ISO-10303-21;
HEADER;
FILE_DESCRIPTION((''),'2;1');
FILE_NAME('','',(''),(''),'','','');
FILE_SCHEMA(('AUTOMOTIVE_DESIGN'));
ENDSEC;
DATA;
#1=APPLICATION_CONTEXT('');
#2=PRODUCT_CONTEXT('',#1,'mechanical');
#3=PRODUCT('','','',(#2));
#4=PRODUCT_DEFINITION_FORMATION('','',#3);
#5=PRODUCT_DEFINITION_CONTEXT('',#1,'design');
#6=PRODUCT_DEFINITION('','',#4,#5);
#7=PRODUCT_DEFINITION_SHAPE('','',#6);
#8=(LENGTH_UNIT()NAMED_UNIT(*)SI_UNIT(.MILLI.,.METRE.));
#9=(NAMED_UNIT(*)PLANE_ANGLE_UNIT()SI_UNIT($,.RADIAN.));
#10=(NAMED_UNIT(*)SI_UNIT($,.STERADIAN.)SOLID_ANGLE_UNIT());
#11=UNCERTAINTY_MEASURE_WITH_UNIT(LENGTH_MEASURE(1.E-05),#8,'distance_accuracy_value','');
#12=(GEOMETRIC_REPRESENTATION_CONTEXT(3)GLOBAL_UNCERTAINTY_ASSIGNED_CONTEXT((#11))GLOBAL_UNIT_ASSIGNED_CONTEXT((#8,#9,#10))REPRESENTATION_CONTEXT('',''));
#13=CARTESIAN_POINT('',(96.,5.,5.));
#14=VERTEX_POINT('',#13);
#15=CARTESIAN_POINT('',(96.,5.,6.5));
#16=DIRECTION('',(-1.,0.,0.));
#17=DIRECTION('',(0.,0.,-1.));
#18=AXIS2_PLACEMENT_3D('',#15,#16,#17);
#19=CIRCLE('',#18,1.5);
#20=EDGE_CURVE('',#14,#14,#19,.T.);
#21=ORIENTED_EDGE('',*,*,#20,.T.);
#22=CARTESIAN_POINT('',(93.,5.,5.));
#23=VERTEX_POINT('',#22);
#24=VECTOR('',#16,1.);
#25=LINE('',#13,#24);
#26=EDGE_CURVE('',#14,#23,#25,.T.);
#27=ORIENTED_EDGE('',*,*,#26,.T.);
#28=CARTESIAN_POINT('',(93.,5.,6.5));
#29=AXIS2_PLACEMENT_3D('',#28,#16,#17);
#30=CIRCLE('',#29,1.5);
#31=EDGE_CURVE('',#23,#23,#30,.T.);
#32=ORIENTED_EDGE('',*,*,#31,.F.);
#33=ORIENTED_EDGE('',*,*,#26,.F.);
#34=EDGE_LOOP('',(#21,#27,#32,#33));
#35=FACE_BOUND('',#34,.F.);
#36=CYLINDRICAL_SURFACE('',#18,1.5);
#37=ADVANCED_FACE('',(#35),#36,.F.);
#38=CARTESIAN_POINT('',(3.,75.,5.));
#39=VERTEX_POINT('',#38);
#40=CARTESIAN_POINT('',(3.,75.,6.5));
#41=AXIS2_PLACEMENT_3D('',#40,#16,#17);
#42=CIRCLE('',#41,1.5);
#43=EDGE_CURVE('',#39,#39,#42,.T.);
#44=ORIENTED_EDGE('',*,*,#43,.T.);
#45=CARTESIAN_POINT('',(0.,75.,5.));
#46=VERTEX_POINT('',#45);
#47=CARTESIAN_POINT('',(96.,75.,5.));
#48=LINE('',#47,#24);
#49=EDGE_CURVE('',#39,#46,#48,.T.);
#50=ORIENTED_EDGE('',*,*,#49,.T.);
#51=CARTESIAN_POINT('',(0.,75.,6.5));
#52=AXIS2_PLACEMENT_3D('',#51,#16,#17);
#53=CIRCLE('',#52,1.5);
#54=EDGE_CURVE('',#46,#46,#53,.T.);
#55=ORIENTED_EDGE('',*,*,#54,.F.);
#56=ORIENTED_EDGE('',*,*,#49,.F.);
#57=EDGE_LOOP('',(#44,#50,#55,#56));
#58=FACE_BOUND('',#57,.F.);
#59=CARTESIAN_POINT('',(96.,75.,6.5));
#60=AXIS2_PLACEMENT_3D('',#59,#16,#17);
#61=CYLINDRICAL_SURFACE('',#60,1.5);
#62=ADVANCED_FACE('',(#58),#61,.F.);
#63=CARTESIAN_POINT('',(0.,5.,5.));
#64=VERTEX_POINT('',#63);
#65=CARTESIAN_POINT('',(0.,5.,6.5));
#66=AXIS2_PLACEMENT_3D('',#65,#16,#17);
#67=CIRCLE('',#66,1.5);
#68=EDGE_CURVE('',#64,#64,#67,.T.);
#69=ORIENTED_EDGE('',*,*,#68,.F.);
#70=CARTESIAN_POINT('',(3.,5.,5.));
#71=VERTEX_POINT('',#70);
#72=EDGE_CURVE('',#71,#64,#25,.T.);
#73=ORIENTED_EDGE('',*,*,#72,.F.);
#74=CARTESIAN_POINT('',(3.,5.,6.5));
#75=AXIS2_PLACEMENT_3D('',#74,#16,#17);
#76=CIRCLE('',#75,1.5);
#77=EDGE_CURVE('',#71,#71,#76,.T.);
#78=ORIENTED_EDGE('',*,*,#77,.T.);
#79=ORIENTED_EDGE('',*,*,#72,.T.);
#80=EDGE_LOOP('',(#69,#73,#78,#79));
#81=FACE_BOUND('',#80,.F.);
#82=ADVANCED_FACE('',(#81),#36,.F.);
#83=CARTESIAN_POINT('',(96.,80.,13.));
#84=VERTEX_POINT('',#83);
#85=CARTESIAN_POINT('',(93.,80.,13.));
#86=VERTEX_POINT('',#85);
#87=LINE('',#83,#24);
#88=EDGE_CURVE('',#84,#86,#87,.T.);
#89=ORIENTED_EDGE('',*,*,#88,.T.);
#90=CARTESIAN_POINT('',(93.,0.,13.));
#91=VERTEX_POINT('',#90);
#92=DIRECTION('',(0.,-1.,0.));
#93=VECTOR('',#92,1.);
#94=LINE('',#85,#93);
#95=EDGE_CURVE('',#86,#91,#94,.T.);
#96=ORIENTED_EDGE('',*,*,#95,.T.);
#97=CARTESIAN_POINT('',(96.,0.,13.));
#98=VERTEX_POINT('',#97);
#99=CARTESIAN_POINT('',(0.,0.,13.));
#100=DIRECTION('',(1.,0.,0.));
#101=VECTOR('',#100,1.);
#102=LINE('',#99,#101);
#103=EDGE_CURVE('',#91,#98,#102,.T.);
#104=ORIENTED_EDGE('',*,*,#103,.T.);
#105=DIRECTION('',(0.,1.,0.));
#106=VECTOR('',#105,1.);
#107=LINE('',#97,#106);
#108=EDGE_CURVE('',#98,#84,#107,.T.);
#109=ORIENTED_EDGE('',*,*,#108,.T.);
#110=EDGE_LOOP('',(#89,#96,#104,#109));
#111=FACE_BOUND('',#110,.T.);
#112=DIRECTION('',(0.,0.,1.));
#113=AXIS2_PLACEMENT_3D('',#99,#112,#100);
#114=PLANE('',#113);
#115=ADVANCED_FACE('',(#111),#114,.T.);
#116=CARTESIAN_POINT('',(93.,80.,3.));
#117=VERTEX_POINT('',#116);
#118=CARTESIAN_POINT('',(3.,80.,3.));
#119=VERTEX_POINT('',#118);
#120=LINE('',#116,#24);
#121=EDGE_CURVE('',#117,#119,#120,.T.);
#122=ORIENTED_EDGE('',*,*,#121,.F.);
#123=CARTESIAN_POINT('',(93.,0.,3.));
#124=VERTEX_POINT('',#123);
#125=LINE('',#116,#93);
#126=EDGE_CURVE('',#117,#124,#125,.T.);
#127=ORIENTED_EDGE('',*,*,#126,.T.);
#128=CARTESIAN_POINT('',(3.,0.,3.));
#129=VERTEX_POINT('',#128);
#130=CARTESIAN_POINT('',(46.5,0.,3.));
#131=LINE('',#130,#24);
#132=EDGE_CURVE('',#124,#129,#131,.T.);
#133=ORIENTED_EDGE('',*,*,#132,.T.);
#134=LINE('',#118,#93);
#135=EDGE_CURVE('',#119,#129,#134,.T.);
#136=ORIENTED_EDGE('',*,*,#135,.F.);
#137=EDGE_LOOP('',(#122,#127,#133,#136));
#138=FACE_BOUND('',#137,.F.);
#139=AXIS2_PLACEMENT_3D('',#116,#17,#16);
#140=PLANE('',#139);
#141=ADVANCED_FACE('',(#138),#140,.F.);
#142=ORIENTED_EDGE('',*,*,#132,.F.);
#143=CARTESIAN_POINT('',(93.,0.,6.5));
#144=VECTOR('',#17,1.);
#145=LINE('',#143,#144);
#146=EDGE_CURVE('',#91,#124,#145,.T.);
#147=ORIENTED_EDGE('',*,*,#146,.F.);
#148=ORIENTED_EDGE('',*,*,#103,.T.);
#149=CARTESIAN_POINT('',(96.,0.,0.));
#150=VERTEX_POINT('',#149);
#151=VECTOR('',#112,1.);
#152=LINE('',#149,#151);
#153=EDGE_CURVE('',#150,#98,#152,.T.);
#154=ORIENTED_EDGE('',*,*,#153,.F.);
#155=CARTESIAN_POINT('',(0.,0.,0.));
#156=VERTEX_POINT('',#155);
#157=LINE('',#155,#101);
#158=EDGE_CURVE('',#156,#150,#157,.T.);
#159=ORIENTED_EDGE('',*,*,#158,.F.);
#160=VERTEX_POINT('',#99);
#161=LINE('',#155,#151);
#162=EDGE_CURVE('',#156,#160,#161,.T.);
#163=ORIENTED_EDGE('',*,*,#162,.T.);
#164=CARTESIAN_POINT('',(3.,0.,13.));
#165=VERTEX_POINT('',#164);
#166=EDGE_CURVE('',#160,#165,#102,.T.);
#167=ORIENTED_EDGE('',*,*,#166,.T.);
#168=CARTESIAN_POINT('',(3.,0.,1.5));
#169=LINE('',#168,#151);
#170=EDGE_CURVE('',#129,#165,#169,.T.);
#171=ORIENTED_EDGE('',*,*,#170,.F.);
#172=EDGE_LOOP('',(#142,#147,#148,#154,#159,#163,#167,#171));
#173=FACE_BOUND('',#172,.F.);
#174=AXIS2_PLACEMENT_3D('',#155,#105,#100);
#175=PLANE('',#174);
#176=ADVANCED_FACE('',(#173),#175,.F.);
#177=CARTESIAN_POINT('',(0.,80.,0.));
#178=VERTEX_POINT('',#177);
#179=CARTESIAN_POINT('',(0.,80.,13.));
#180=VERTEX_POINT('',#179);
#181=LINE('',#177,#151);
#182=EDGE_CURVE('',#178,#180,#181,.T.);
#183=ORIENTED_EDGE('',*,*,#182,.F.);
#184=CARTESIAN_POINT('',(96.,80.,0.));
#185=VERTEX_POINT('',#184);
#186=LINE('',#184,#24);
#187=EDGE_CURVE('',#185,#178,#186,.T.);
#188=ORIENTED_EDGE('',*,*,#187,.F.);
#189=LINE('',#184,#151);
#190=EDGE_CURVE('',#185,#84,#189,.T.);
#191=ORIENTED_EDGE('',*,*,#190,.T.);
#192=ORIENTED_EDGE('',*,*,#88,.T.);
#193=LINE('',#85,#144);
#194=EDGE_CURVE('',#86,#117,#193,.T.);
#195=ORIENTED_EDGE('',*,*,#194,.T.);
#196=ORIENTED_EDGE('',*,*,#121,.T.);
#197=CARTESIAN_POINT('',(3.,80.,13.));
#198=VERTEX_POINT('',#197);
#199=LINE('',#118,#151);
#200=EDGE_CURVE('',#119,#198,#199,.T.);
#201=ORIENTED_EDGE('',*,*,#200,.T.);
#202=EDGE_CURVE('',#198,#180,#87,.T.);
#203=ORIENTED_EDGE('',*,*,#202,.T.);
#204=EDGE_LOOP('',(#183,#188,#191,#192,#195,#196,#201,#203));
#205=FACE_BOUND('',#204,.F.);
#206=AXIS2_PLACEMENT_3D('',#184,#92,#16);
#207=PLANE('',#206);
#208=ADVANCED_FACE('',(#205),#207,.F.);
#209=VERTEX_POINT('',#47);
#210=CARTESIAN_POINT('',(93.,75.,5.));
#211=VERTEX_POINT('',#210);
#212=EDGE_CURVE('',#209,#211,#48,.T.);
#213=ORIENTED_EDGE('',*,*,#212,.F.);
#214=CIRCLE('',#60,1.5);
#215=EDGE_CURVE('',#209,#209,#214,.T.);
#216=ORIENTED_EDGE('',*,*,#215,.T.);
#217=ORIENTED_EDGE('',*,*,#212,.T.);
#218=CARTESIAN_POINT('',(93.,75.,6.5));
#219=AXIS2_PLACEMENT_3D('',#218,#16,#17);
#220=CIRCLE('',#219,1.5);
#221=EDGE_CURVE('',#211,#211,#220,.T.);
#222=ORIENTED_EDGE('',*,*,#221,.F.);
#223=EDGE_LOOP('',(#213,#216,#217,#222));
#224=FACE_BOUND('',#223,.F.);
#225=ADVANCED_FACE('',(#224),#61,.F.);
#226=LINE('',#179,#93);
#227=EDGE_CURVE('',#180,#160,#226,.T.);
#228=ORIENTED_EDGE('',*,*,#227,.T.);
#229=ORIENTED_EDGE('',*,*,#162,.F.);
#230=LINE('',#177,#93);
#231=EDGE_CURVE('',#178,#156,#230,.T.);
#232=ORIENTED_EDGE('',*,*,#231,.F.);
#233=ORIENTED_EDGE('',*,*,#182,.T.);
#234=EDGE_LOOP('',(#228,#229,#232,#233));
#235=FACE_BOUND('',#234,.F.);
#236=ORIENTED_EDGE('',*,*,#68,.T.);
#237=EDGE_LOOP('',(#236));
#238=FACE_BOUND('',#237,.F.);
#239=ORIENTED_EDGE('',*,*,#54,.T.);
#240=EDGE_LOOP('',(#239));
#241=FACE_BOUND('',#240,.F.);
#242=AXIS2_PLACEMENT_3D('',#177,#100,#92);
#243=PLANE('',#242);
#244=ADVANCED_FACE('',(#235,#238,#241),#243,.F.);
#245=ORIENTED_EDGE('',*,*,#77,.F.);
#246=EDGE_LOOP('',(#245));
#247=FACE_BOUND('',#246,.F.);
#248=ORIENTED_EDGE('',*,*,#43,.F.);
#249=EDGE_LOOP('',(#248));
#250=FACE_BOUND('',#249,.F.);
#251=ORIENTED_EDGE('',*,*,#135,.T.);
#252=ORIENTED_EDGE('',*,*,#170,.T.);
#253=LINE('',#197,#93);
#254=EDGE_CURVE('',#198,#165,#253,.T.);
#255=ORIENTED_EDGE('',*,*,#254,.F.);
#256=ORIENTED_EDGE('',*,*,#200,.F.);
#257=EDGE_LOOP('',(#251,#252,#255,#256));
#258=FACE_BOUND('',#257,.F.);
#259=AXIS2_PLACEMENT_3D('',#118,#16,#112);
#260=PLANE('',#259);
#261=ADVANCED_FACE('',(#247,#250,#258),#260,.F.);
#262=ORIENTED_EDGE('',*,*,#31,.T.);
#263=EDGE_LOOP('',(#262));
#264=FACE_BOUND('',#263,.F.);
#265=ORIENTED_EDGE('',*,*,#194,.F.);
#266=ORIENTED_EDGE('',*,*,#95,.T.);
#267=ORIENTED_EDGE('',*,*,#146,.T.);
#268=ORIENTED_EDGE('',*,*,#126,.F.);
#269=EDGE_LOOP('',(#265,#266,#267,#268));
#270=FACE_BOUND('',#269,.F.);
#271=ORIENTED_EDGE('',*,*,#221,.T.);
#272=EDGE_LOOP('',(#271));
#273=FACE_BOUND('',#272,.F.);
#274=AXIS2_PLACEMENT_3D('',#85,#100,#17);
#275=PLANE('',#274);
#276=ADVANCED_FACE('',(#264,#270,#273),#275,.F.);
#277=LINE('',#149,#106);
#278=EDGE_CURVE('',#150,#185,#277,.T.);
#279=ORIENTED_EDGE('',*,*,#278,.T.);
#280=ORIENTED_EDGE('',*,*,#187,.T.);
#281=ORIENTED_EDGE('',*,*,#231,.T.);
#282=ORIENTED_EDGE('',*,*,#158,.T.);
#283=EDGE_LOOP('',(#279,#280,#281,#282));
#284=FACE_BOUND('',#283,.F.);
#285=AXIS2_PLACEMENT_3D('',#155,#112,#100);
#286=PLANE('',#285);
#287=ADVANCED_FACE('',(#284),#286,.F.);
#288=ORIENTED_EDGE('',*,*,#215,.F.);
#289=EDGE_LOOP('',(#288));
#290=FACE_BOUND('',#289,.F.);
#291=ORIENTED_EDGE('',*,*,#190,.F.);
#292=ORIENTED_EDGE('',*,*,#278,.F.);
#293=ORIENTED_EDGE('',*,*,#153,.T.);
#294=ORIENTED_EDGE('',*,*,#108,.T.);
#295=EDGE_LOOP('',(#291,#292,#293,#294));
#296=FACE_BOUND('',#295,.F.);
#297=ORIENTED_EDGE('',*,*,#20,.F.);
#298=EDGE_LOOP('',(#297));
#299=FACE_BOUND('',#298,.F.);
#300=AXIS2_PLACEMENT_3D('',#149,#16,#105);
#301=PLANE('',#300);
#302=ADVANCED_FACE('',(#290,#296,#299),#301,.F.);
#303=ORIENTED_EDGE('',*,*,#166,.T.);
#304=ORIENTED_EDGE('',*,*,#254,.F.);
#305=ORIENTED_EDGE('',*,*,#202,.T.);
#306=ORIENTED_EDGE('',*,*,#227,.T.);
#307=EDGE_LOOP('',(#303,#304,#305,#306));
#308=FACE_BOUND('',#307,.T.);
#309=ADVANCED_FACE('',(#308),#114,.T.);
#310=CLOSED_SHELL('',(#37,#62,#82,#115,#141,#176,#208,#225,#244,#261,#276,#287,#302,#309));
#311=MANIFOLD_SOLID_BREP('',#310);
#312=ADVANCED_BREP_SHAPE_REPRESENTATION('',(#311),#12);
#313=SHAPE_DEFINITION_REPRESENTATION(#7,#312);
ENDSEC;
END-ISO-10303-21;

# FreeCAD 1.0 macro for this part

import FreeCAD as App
import Part
import Sketcher

V = App.Vector
Q = App.Units.Quantity

doc = App.newDocument("Part")
body = doc.addObject("PartDesign::Body", "Body")

sketch1 = doc.addObject("Sketcher::SketchObject", "Sketch")
body.addObject(sketch1)
sketch1.AttachmentSupport = (doc.XY_Plane, [""])
sketch1.MapMode = "FlatFace"
sketch1.addGeometry(Part.LineSegment(V(0, 80, 0), V(0, 0, 0)), False)
sketch1.addGeometry(Part.LineSegment(V(0, 0, 0), V(96, 0, 0)), False)
sketch1.addGeometry(Part.LineSegment(V(96, 0, 0), V(96, 80, 0)), False)
sketch1.addGeometry(Part.LineSegment(V(96, 80, 0), V(0, 80, 0)), False)
sketch1.addConstraint(Sketcher.Constraint("Coincident", 0, 2, 1, 1))
sketch1.addConstraint(Sketcher.Constraint("Coincident", 1, 2, 2, 1))
sketch1.addConstraint(Sketcher.Constraint("Coincident", 2, 2, 3, 1))
sketch1.addConstraint(Sketcher.Constraint("Coincident", 3, 2, 0, 1))
sketch1.addConstraint(Sketcher.Constraint("Vertical", 0))
sketch1.addConstraint(Sketcher.Constraint("Horizontal", 1))
sketch1.addConstraint(Sketcher.Constraint("Vertical", 2))
sketch1.addConstraint(Sketcher.Constraint("Horizontal", 3))
sketch1.addConstraint(Sketcher.Constraint("Coincident", 0, 2, -1, 1))
sketch1.addConstraint(Sketcher.Constraint("DistanceX", 1, 1, 1, 2, Q("96 mm")))
sketch1.addConstraint(Sketcher.Constraint("DistanceY", 0, 2, 0, 1, Q("80 mm")))
pad1 = doc.addObject("PartDesign::Pad", "Pad")
body.addObject(pad1)
pad1.Profile = sketch1
pad1.Length = 13

sketch2 = doc.addObject("Sketcher::SketchObject", "Sketch001")
body.addObject(sketch2)
sketch2.AttachmentSupport = (doc.XZ_Plane, [""])
sketch2.MapMode = "FlatFace"
sketch2.AttachmentOffset = App.Placement(V(0, 0, -80), App.Rotation())
sketch2.addGeometry(Part.LineSegment(V(3, 3, 0), V(3, 13, 0)), False)
sketch2.addGeometry(Part.LineSegment(V(3, 13, 0), V(93, 13, 0)), False)
sketch2.addGeometry(Part.LineSegment(V(93, 13, 0), V(93, 3, 0)), False)
sketch2.addGeometry(Part.LineSegment(V(93, 3, 0), V(3, 3, 0)), False)
sketch2.addConstraint(Sketcher.Constraint("Coincident", 0, 2, 1, 1))
sketch2.addConstraint(Sketcher.Constraint("Coincident", 1, 2, 2, 1))
sketch2.addConstraint(Sketcher.Constraint("Coincident", 2, 2, 3, 1))
sketch2.addConstraint(Sketcher.Constraint("Coincident", 3, 2, 0, 1))
sketch2.addConstraint(Sketcher.Constraint("Vertical", 0))
sketch2.addConstraint(Sketcher.Constraint("Horizontal", 1))
sketch2.addConstraint(Sketcher.Constraint("Vertical", 2))
sketch2.addConstraint(Sketcher.Constraint("Horizontal", 3))
sketch2.addConstraint(Sketcher.Constraint("DistanceX", -1, 1, 0, 2, Q("3 mm")))
sketch2.addConstraint(Sketcher.Constraint("DistanceY", -1, 1, 2, 2, Q("3 mm")))
sketch2.addConstraint(Sketcher.Constraint("DistanceX", 1, 1, 1, 2, Q("90 mm")))
sketch2.addConstraint(Sketcher.Constraint("DistanceY", 0, 1, 0, 2, Q("10 mm")))
pocket1 = doc.addObject("PartDesign::Pocket", "Pocket")
body.addObject(pocket1)
pocket1.Profile = sketch2
pocket1.Type = "ThroughAll"
pocket1.Reversed = True

sketch3 = doc.addObject("Sketcher::SketchObject", "Sketch002")
body.addObject(sketch3)
sketch3.AttachmentSupport = (doc.YZ_Plane, [""])
sketch3.MapMode = "FlatFace"
sketch3.AttachmentOffset = App.Placement(V(0, 0, 96), App.Rotation())
sketch3.addGeometry(Part.Circle(V(75, 6.5, 0), V(0, 0, 1), 1.5), False)
sketch3.addGeometry(Part.Circle(V(5, 6.5, 0), V(0, 0, 1), 1.5), False)
sketch3.addConstraint(Sketcher.Constraint("Equal", 0, 1))
sketch3.addConstraint(Sketcher.Constraint("Horizontal", 0, 3, 1, 3))
sketch3.addConstraint(Sketcher.Constraint("Diameter", 0, Q("3 mm")))
sketch3.addConstraint(Sketcher.Constraint("DistanceX", -1, 1, 0, 3, Q("75 mm")))
sketch3.addConstraint(Sketcher.Constraint("DistanceX", -1, 1, 1, 3, Q("5 mm")))
sketch3.addConstraint(Sketcher.Constraint("DistanceY", -1, 1, 0, 3, Q("6.5 mm")))
doc.recompute()
hole = doc.addObject("PartDesign::Hole", "Hole")
body.addObject(hole)
hole.Profile = sketch3
hole.ThreadType = "None"
hole.Diameter = 3
hole.DepthType = "ThroughAll"

doc.recompute()
